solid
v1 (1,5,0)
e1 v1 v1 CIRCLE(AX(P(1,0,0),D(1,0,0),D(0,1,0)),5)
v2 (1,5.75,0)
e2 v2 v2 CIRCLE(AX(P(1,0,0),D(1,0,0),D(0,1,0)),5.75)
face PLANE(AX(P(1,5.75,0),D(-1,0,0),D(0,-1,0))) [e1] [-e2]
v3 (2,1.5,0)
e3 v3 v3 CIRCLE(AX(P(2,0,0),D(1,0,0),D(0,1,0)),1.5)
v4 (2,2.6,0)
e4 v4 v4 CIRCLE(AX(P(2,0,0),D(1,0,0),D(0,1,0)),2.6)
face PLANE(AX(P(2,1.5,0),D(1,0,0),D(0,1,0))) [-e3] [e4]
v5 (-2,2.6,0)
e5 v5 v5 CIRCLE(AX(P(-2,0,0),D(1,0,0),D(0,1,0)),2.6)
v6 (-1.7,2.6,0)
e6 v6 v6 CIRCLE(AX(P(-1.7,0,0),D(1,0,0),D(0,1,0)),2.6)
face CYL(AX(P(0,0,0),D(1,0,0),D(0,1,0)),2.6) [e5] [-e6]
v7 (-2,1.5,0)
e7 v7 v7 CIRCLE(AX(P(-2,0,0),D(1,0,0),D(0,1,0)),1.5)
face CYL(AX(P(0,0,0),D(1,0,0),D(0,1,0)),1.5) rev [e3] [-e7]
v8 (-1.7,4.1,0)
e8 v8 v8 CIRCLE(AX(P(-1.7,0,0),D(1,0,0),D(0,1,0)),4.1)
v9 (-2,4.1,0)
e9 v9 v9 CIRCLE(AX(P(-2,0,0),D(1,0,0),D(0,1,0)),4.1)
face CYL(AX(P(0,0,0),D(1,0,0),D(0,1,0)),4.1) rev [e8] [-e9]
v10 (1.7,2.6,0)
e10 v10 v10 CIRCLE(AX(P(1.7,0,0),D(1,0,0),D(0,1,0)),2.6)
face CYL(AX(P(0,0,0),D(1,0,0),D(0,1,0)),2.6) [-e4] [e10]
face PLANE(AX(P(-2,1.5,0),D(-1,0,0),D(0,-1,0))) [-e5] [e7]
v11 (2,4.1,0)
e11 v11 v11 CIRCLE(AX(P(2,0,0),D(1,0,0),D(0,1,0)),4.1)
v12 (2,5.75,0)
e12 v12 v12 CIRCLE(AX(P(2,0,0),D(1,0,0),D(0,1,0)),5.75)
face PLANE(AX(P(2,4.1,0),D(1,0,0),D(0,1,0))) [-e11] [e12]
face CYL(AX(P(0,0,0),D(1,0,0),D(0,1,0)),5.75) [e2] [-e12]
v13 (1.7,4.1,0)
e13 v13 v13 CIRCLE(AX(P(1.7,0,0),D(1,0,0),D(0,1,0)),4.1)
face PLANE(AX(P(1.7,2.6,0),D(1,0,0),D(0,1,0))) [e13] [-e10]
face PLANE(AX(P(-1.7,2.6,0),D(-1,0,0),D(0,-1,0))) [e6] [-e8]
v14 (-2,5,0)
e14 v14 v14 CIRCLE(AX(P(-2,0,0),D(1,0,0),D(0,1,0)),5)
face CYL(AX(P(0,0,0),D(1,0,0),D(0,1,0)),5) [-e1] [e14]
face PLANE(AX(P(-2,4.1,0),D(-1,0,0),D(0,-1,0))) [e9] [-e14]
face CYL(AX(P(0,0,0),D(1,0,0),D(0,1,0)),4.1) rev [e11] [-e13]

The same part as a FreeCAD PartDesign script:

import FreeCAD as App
import Part
import Sketcher
from FreeCAD import Vector
Q = App.Units.Quantity

doc = App.newDocument("Part")
body = doc.addObject("PartDesign::Body", "Body")

# Sketch on XY plane
sketch1 = body.newObject("Sketcher::SketchObject", "Sketch")
sketch1.AttachmentSupport = (doc.getObject("XY_Plane"), [""])
sketch1.MapMode = "FlatFace"
sketch1.addGeometry([
    Part.LineSegment(Vector(-2, 1.5, 0), Vector(2, 1.5, 0)),  # 0
    Part.LineSegment(Vector(2, 1.5, 0), Vector(2, 2.6, 0)),  # 1
    Part.LineSegment(Vector(2, 2.6, 0), Vector(1.7, 2.6, 0)),  # 2
    Part.LineSegment(Vector(1.7, 2.6, 0), Vector(1.7, 4.1, 0)),  # 3
    Part.LineSegment(Vector(1.7, 4.1, 0), Vector(2, 4.1, 0)),  # 4
    Part.LineSegment(Vector(2, 4.1, 0), Vector(2, 5.75, 0)),  # 5
    Part.LineSegment(Vector(2, 5.75, 0), Vector(1, 5.75, 0)),  # 6
    Part.LineSegment(Vector(1, 5.75, 0), Vector(1, 5, 0)),  # 7
    Part.LineSegment(Vector(1, 5, 0), Vector(-2, 5, 0)),  # 8
    Part.LineSegment(Vector(-2, 5, 0), Vector(-2, 4.1, 0)),  # 9
    Part.LineSegment(Vector(-2, 4.1, 0), Vector(-1.7, 4.1, 0)),  # 10
    Part.LineSegment(Vector(-1.7, 4.1, 0), Vector(-1.7, 2.6, 0)),  # 11
    Part.LineSegment(Vector(-1.7, 2.6, 0), Vector(-2, 2.6, 0)),  # 12
    Part.LineSegment(Vector(-2, 2.6, 0), Vector(-2, 1.5, 0)),  # 13
], False)
sketch1.addConstraint([
    Sketcher.Constraint("Coincident", 0, 2, 1, 1),
    Sketcher.Constraint("Coincident", 1, 2, 2, 1),
    Sketcher.Constraint("Coincident", 2, 2, 3, 1),
    Sketcher.Constraint("Coincident", 3, 2, 4, 1),
    Sketcher.Constraint("Coincident", 4, 2, 5, 1),
    Sketcher.Constraint("Coincident", 5, 2, 6, 1),
    Sketcher.Constraint("Coincident", 6, 2, 7, 1),
    Sketcher.Constraint("Coincident", 7, 2, 8, 1),
    Sketcher.Constraint("Coincident", 8, 2, 9, 1),
    Sketcher.Constraint("Coincident", 9, 2, 10, 1),
    Sketcher.Constraint("Coincident", 10, 2, 11, 1),
    Sketcher.Constraint("Coincident", 11, 2, 12, 1),
    Sketcher.Constraint("Coincident", 12, 2, 13, 1),
    Sketcher.Constraint("Coincident", 13, 2, 0, 1),
    Sketcher.Constraint("Horizontal", 0),
    Sketcher.Constraint("Vertical", 1),
    Sketcher.Constraint("Horizontal", 2),
    Sketcher.Constraint("Vertical", 3),
    Sketcher.Constraint("Horizontal", 4),
    Sketcher.Constraint("Vertical", 5),
    Sketcher.Constraint("Horizontal", 6),
    Sketcher.Constraint("Vertical", 7),
    Sketcher.Constraint("Horizontal", 8),
    Sketcher.Constraint("Vertical", 9),
    Sketcher.Constraint("Horizontal", 10),
    Sketcher.Constraint("Vertical", 11),
    Sketcher.Constraint("Horizontal", 12),
    Sketcher.Constraint("Vertical", 13),
    Sketcher.Constraint("Symmetric", 4, 2, 9, 2, -2),
    Sketcher.Constraint("Symmetric", 2, 2, 11, 2, -2),
    Sketcher.Constraint("Vertical", 1, 2, 4, 2),
    Sketcher.Constraint("Vertical", 9, 2, 12, 2),
    Sketcher.Constraint("DistanceX", 0, 1, 0, 2, Q("4 mm")),
    Sketcher.Constraint("DistanceX", 6, 2, 6, 1, Q("1 mm")),
    Sketcher.Constraint("DistanceX", 2, 2, 2, 1, Q("0.3 mm")),
    Sketcher.Constraint("DistanceY", 1, 1, 1, 2, Q("1.1 mm")),
    Sketcher.Constraint("DistanceY", 3, 1, 3, 2, Q("1.5 mm")),
    Sketcher.Constraint("DistanceY", 9, 2, 9, 1, Q("0.9 mm")),
    Sketcher.Constraint("DistanceY", -1, 1, 7, 2, Q("5 mm")),
    Sketcher.Constraint("DistanceY", 5, 1, 5, 2, Q("1.65 mm")),
])
revolution = body.newObject("PartDesign::Revolution", "Revolution")
revolution.Profile = sketch1
revolution.ReferenceAxis = (sketch1, ["H_Axis"])
revolution.Angle = 360

doc.recompute()
